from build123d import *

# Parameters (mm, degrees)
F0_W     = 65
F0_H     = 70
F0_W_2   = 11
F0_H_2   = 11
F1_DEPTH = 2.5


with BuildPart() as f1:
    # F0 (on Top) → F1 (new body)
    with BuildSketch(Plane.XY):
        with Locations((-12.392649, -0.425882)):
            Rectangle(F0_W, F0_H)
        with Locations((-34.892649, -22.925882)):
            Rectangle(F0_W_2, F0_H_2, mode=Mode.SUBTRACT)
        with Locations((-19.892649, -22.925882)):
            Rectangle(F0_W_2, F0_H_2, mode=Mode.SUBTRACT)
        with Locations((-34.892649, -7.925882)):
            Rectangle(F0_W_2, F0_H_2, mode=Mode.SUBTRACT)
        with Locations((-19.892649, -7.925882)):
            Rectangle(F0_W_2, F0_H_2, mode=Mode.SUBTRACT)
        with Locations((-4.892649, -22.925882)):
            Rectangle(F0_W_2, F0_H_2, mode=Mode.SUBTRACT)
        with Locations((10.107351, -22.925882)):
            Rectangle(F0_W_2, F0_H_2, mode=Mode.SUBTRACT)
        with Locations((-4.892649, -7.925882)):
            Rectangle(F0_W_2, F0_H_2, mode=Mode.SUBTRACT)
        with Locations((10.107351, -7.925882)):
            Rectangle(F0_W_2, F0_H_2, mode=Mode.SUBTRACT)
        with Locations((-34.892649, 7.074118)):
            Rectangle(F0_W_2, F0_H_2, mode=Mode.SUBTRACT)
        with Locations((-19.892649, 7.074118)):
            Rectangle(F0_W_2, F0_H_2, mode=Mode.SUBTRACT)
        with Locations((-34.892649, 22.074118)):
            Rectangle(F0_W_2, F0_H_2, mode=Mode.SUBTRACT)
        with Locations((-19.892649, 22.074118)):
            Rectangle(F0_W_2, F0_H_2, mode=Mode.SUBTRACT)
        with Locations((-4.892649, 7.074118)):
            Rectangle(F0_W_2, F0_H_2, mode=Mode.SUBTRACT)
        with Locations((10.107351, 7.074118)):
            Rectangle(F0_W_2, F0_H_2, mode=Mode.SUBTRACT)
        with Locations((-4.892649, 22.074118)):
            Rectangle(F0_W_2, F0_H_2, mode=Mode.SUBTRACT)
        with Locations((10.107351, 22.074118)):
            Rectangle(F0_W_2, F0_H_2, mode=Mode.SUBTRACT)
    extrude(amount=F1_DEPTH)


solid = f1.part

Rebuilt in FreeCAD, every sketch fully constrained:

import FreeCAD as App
import Part
import Sketcher

V = App.Vector
Q = App.Units.Quantity

doc = App.newDocument("Part")
body = doc.addObject("PartDesign::Body", "Body")

sketch1 = doc.addObject("Sketcher::SketchObject", "Sketch")
body.addObject(sketch1)
sketch1.AttachmentSupport = (doc.XY_Plane, [""])
sketch1.MapMode = "FlatFace"
sketch1.addGeometry(Part.LineSegment(V(-45, 35, 0), V(-45, -35, 0)), False)
sketch1.addGeometry(Part.LineSegment(V(-45, -35, 0), V(20, -35, 0)), False)
sketch1.addGeometry(Part.LineSegment(V(20, -35, 0), V(20, 35, 0)), False)
sketch1.addGeometry(Part.LineSegment(V(20, 35, 0), V(-45, 35, 0)), False)
sketch1.addGeometry(Part.LineSegment(V(-29, -28, 0), V(-40, -28, 0)), False)
sketch1.addGeometry(Part.LineSegment(V(-40, -28, 0), V(-40, -17, 0)), False)
sketch1.addGeometry(Part.LineSegment(V(-40, -17, 0), V(-29, -17, 0)), False)
sketch1.addGeometry(Part.LineSegment(V(-29, -17, 0), V(-29, -28, 0)), False)
sketch1.addGeometry(Part.LineSegment(V(-14, -28, 0), V(-25, -28, 0)), False)
sketch1.addGeometry(Part.LineSegment(V(-25, -28, 0), V(-25, -17, 0)), False)
sketch1.addGeometry(Part.LineSegment(V(-25, -17, 0), V(-14, -17, 0)), False)
sketch1.addGeometry(Part.LineSegment(V(-14, -17, 0), V(-14, -28, 0)), False)
sketch1.addGeometry(Part.LineSegment(V(-29, -13, 0), V(-40, -13, 0)), False)
sketch1.addGeometry(Part.LineSegment(V(-40, -13, 0), V(-40, -2, 0)), False)
sketch1.addGeometry(Part.LineSegment(V(-40, -2, 0), V(-29, -2, 0)), False)
sketch1.addGeometry(Part.LineSegment(V(-29, -2, 0), V(-29, -13, 0)), False)
sketch1.addGeometry(Part.LineSegment(V(-14, -13, 0), V(-25, -13, 0)), False)
sketch1.addGeometry(Part.LineSegment(V(-25, -13, 0), V(-25, -2, 0)), False)
sketch1.addGeometry(Part.LineSegment(V(-25, -2, 0), V(-14, -2, 0)), False)
sketch1.addGeometry(Part.LineSegment(V(-14, -2, 0), V(-14, -13, 0)), False)
sketch1.addGeometry(Part.LineSegment(V(1, -28, 0), V(-10, -28, 0)), False)
sketch1.addGeometry(Part.LineSegment(V(-10, -28, 0), V(-10, -17, 0)), False)
sketch1.addGeometry(Part.LineSegment(V(-10, -17, 0), V(1, -17, 0)), False)
sketch1.addGeometry(Part.LineSegment(V(1, -17, 0), V(1, -28, 0)), False)
sketch1.addGeometry(Part.LineSegment(V(16, -28, 0), V(5, -28, 0)), False)
sketch1.addGeometry(Part.LineSegment(V(5, -28, 0), V(5, -17, 0)), False)
sketch1.addGeometry(Part.LineSegment(V(5, -17, 0), V(16, -17, 0)), False)
sketch1.addGeometry(Part.LineSegment(V(16, -17, 0), V(16, -28, 0)), False)
sketch1.addGeometry(Part.LineSegment(V(1, -13, 0), V(-10, -13, 0)), False)
sketch1.addGeometry(Part.LineSegment(V(-10, -13, 0), V(-10, -2, 0)), False)
sketch1.addGeometry(Part.LineSegment(V(-10, -2, 0), V(1, -2, 0)), False)
sketch1.addGeometry(Part.LineSegment(V(1, -2, 0), V(1, -13, 0)), False)
sketch1.addGeometry(Part.LineSegment(V(16, -13, 0), V(5, -13, 0)), False)
sketch1.addGeometry(Part.LineSegment(V(5, -13, 0), V(5, -2, 0)), False)
sketch1.addGeometry(Part.LineSegment(V(5, -2, 0), V(16, -2, 0)), False)
sketch1.addGeometry(Part.LineSegment(V(16, -2, 0), V(16, -13, 0)), False)
sketch1.addGeometry(Part.LineSegment(V(-29, 2, 0), V(-40, 2, 0)), False)
sketch1.addGeometry(Part.LineSegment(V(-40, 2, 0), V(-40, 13, 0)), False)
sketch1.addGeometry(Part.LineSegment(V(-40, 13, 0), V(-29, 13, 0)), False)
sketch1.addGeometry(Part.LineSegment(V(-29, 13, 0), V(-29, 2, 0)), False)
sketch1.addGeometry(Part.LineSegment(V(-14, 2, 0), V(-25, 2, 0)), False)
sketch1.addGeometry(Part.LineSegment(V(-25, 2, 0), V(-25, 13, 0)), False)
sketch1.addGeometry(Part.LineSegment(V(-25, 13, 0), V(-14, 13, 0)), False)
sketch1.addGeometry(Part.LineSegment(V(-14, 13, 0), V(-14, 2, 0)), False)
sketch1.addGeometry(Part.LineSegment(V(-29, 17, 0), V(-40, 17, 0)), False)
sketch1.addGeometry(Part.LineSegment(V(-40, 17, 0), V(-40, 28, 0)), False)
sketch1.addGeometry(Part.LineSegment(V(-40, 28, 0), V(-29, 28, 0)), False)
sketch1.addGeometry(Part.LineSegment(V(-29, 28, 0), V(-29, 17, 0)), False)
sketch1.addGeometry(Part.LineSegment(V(-14, 17, 0), V(-25, 17, 0)), False)
sketch1.addGeometry(Part.LineSegment(V(-25, 17, 0), V(-25, 28, 0)), False)
sketch1.addGeometry(Part.LineSegment(V(-25, 28, 0), V(-14, 28, 0)), False)
sketch1.addGeometry(Part.LineSegment(V(-14, 28, 0), V(-14, 17, 0)), False)
sketch1.addGeometry(Part.LineSegment(V(1, 2, 0), V(-10, 2, 0)), False)
sketch1.addGeometry(Part.LineSegment(V(-10, 2, 0), V(-10, 13, 0)), False)
sketch1.addGeometry(Part.LineSegment(V(-10, 13, 0), V(1, 13, 0)), False)
sketch1.addGeometry(Part.LineSegment(V(1, 13, 0), V(1, 2, 0)), False)
sketch1.addGeometry(Part.LineSegment(V(16, 2, 0), V(5, 2, 0)), False)
sketch1.addGeometry(Part.LineSegment(V(5, 2, 0), V(5, 13, 0)), False)
sketch1.addGeometry(Part.LineSegment(V(5, 13, 0), V(16, 13, 0)), False)
sketch1.addGeometry(Part.LineSegment(V(16, 13, 0), V(16, 2, 0)), False)
sketch1.addGeometry(Part.LineSegment(V(1, 17, 0), V(-10, 17, 0)), False)
sketch1.addGeometry(Part.LineSegment(V(-10, 17, 0), V(-10, 28, 0)), False)
sketch1.addGeometry(Part.LineSegment(V(-10, 28, 0), V(1, 28, 0)), False)
sketch1.addGeometry(Part.LineSegment(V(1, 28, 0), V(1, 17, 0)), False)
sketch1.addGeometry(Part.LineSegment(V(16, 17, 0), V(5, 17, 0)), False)
sketch1.addGeometry(Part.LineSegment(V(5, 17, 0), V(5, 28, 0)), False)
sketch1.addGeometry(Part.LineSegment(V(5, 28, 0), V(16, 28, 0)), False)
sketch1.addGeometry(Part.LineSegment(V(16, 28, 0), V(16, 17, 0)), False)
sketch1.addConstraint(Sketcher.Constraint("Coincident", 0, 2, 1, 1))
sketch1.addConstraint(Sketcher.Constraint("Coincident", 1, 2, 2, 1))
sketch1.addConstraint(Sketcher.Constraint("Coincident", 2, 2, 3, 1))
sketch1.addConstraint(Sketcher.Constraint("Coincident", 3, 2, 0, 1))
sketch1.addConstraint(Sketcher.Constraint("Coincident", 4, 2, 5, 1))
sketch1.addConstraint(Sketcher.Constraint("Coincident", 5, 2, 6, 1))
sketch1.addConstraint(Sketcher.Constraint("Coincident", 6, 2, 7, 1))
sketch1.addConstraint(Sketcher.Constraint("Coincident", 7, 2, 4, 1))
sketch1.addConstraint(Sketcher.Constraint("Coincident", 8, 2, 9, 1))
sketch1.addConstraint(Sketcher.Constraint("Coincident", 9, 2, 10, 1))
sketch1.addConstraint(Sketcher.Constraint("Coincident", 10, 2, 11, 1))
sketch1.addConstraint(Sketcher.Constraint("Coincident", 11, 2, 8, 1))
sketch1.addConstraint(Sketcher.Constraint("Coincident", 12, 2, 13, 1))
sketch1.addConstraint(Sketcher.Constraint("Coincident", 13, 2, 14, 1))
sketch1.addConstraint(Sketcher.Constraint("Coincident", 14, 2, 15, 1))
sketch1.addConstraint(Sketcher.Constraint("Coincident", 15, 2, 12, 1))
sketch1.addConstraint(Sketcher.Constraint("Coincident", 16, 2, 17, 1))
sketch1.addConstraint(Sketcher.Constraint("Coincident", 17, 2, 18, 1))
sketch1.addConstraint(Sketcher.Constraint("Coincident", 18, 2, 19, 1))
sketch1.addConstraint(Sketcher.Constraint("Coincident", 19, 2, 16, 1))
sketch1.addConstraint(Sketcher.Constraint("Coincident", 20, 2, 21, 1))
sketch1.addConstraint(Sketcher.Constraint("Coincident", 21, 2, 22, 1))
sketch1.addConstraint(Sketcher.Constraint("Coincident", 22, 2, 23, 1))
sketch1.addConstraint(Sketcher.Constraint("Coincident", 23, 2, 20, 1))
sketch1.addConstraint(Sketcher.Constraint("Coincident", 24, 2, 25, 1))
sketch1.addConstraint(Sketcher.Constraint("Coincident", 25, 2, 26, 1))
sketch1.addConstraint(Sketcher.Constraint("Coincident", 26, 2, 27, 1))
sketch1.addConstraint(Sketcher.Constraint("Coincident", 27, 2, 24, 1))
sketch1.addConstraint(Sketcher.Constraint("Coincident", 28, 2, 29, 1))
sketch1.addConstraint(Sketcher.Constraint("Coincident", 29, 2, 30, 1))
sketch1.addConstraint(Sketcher.Constraint("Coincident", 30, 2, 31, 1))
sketch1.addConstraint(Sketcher.Constraint("Coincident", 31, 2, 28, 1))
sketch1.addConstraint(Sketcher.Constraint("Coincident", 32, 2, 33, 1))
sketch1.addConstraint(Sketcher.Constraint("Coincident", 33, 2, 34, 1))
sketch1.addConstraint(Sketcher.Constraint("Coincident", 34, 2, 35, 1))
sketch1.addConstraint(Sketcher.Constraint("Coincident", 35, 2, 32, 1))
sketch1.addConstraint(Sketcher.Constraint("Coincident", 36, 2, 37, 1))
sketch1.addConstraint(Sketcher.Constraint("Coincident", 37, 2, 38, 1))
sketch1.addConstraint(Sketcher.Constraint("Coincident", 38, 2, 39, 1))
sketch1.addConstraint(Sketcher.Constraint("Coincident", 39, 2, 36, 1))
sketch1.addConstraint(Sketcher.Constraint("Coincident", 40, 2, 41, 1))
sketch1.addConstraint(Sketcher.Constraint("Coincident", 41, 2, 42, 1))
sketch1.addConstraint(Sketcher.Constraint("Coincident", 42, 2, 43, 1))
sketch1.addConstraint(Sketcher.Constraint("Coincident", 43, 2, 40, 1))
sketch1.addConstraint(Sketcher.Constraint("Coincident", 44, 2, 45, 1))
sketch1.addConstraint(Sketcher.Constraint("Coincident", 45, 2, 46, 1))
sketch1.addConstraint(Sketcher.Constraint("Coincident", 46, 2, 47, 1))
sketch1.addConstraint(Sketcher.Constraint("Coincident", 47, 2, 44, 1))
sketch1.addConstraint(Sketcher.Constraint("Coincident", 48, 2, 49, 1))
sketch1.addConstraint(Sketcher.Constraint("Coincident", 49, 2, 50, 1))
sketch1.addConstraint(Sketcher.Constraint("Coincident", 50, 2, 51, 1))
sketch1.addConstraint(Sketcher.Constraint("Coincident", 51, 2, 48, 1))
sketch1.addConstraint(Sketcher.Constraint("Coincident", 52, 2, 53, 1))
sketch1.addConstraint(Sketcher.Constraint("Coincident", 53, 2, 54, 1))
sketch1.addConstraint(Sketcher.Constraint("Coincident", 54, 2, 55, 1))
sketch1.addConstraint(Sketcher.Constraint("Coincident", 55, 2, 52, 1))
sketch1.addConstraint(Sketcher.Constraint("Coincident", 56, 2, 57, 1))
sketch1.addConstraint(Sketcher.Constraint("Coincident", 57, 2, 58, 1))
sketch1.addConstraint(Sketcher.Constraint("Coincident", 58, 2, 59, 1))
sketch1.addConstraint(Sketcher.Constraint("Coincident", 59, 2, 56, 1))
sketch1.addConstraint(Sketcher.Constraint("Coincident", 60, 2, 61, 1))
sketch1.addConstraint(Sketcher.Constraint("Coincident", 61, 2, 62, 1))
sketch1.addConstraint(Sketcher.Constraint("Coincident", 62, 2, 63, 1))
sketch1.addConstraint(Sketcher.Constraint("Coincident", 63, 2, 60, 1))
sketch1.addConstraint(Sketcher.Constraint("Coincident", 64, 2, 65, 1))
sketch1.addConstraint(Sketcher.Constraint("Coincident", 65, 2, 66, 1))
sketch1.addConstraint(Sketcher.Constraint("Coincident", 66, 2, 67, 1))
sketch1.addConstraint(Sketcher.Constraint("Coincident", 67, 2, 64, 1))
sketch1.addConstraint(Sketcher.Constraint("Vertical", 0))
sketch1.addConstraint(Sketcher.Constraint("Horizontal", 1))
sketch1.addConstraint(Sketcher.Constraint("Vertical", 2))
sketch1.addConstraint(Sketcher.Constraint("Horizontal", 3))
sketch1.addConstraint(Sketcher.Constraint("Horizontal", 4))
sketch1.addConstraint(Sketcher.Constraint("Vertical", 5))
sketch1.addConstraint(Sketcher.Constraint("Horizontal", 6))
sketch1.addConstraint(Sketcher.Constraint("Vertical", 7))
sketch1.addConstraint(Sketcher.Constraint("Horizontal", 8))
sketch1.addConstraint(Sketcher.Constraint("Vertical", 9))
sketch1.addConstraint(Sketcher.Constraint("Horizontal", 10))
sketch1.addConstraint(Sketcher.Constraint("Vertical", 11))
sketch1.addConstraint(Sketcher.Constraint("Horizontal", 12))
sketch1.addConstraint(Sketcher.Constraint("Vertical", 13))
sketch1.addConstraint(Sketcher.Constraint("Horizontal", 14))
sketch1.addConstraint(Sketcher.Constraint("Vertical", 15))
sketch1.addConstraint(Sketcher.Constraint("Horizontal", 16))
sketch1.addConstraint(Sketcher.Constraint("Vertical", 17))
sketch1.addConstraint(Sketcher.Constraint("Horizontal", 18))
sketch1.addConstraint(Sketcher.Constraint("Vertical", 19))
sketch1.addConstraint(Sketcher.Constraint("Horizontal", 20))
sketch1.addConstraint(Sketcher.Constraint("Vertical", 21))
sketch1.addConstraint(Sketcher.Constraint("Horizontal", 22))
sketch1.addConstraint(Sketcher.Constraint("Vertical", 23))
sketch1.addConstraint(Sketcher.Constraint("Horizontal", 24))
sketch1.addConstraint(Sketcher.Constraint("Vertical", 25))
sketch1.addConstraint(Sketcher.Constraint("Horizontal", 26))
sketch1.addConstraint(Sketcher.Constraint("Vertical", 27))
sketch1.addConstraint(Sketcher.Constraint("Horizontal", 28))
sketch1.addConstraint(Sketcher.Constraint("Vertical", 29))
sketch1.addConstraint(Sketcher.Constraint("Horizontal", 30))
sketch1.addConstraint(Sketcher.Constraint("Vertical", 31))
sketch1.addConstraint(Sketcher.Constraint("Horizontal", 32))
sketch1.addConstraint(Sketcher.Constraint("Vertical", 33))
sketch1.addConstraint(Sketcher.Constraint("Horizontal", 34))
sketch1.addConstraint(Sketcher.Constraint("Vertical", 35))
sketch1.addConstraint(Sketcher.Constraint("Horizontal", 36))
sketch1.addConstraint(Sketcher.Constraint("Vertical", 37))
sketch1.addConstraint(Sketcher.Constraint("Horizontal", 38))
sketch1.addConstraint(Sketcher.Constraint("Vertical", 39))
sketch1.addConstraint(Sketcher.Constraint("Horizontal", 40))
sketch1.addConstraint(Sketcher.Constraint("Vertical", 41))
sketch1.addConstraint(Sketcher.Constraint("Horizontal", 42))
sketch1.addConstraint(Sketcher.Constraint("Vertical", 43))
sketch1.addConstraint(Sketcher.Constraint("Horizontal", 44))
sketch1.addConstraint(Sketcher.Constraint("Vertical", 45))
sketch1.addConstraint(Sketcher.Constraint("Horizontal", 46))
sketch1.addConstraint(Sketcher.Constraint("Vertical", 47))
sketch1.addConstraint(Sketcher.Constraint("Horizontal", 48))
sketch1.addConstraint(Sketcher.Constraint("Vertical", 49))
sketch1.addConstraint(Sketcher.Constraint("Horizontal", 50))
sketch1.addConstraint(Sketcher.Constraint("Vertical", 51))
sketch1.addConstraint(Sketcher.Constraint("Horizontal", 52))
sketch1.addConstraint(Sketcher.Constraint("Vertical", 53))
sketch1.addConstraint(Sketcher.Constraint("Horizontal", 54))
sketch1.addConstraint(Sketcher.Constraint("Vertical", 55))
sketch1.addConstraint(Sketcher.Constraint("Horizontal", 56))
sketch1.addConstraint(Sketcher.Constraint("Vertical", 57))
sketch1.addConstraint(Sketcher.Constraint("Horizontal", 58))
sketch1.addConstraint(Sketcher.Constraint("Vertical", 59))
sketch1.addConstraint(Sketcher.Constraint("Horizontal", 60))
sketch1.addConstraint(Sketcher.Constraint("Vertical", 61))
sketch1.addConstraint(Sketcher.Constraint("Horizontal", 62))
sketch1.addConstraint(Sketcher.Constraint("Vertical", 63))
sketch1.addConstraint(Sketcher.Constraint("Horizontal", 64))
sketch1.addConstraint(Sketcher.Constraint("Vertical", 65))
sketch1.addConstraint(Sketcher.Constraint("Horizontal", 66))
sketch1.addConstraint(Sketcher.Constraint("Vertical", 67))
sketch1.addConstraint(Sketcher.Constraint("Horizontal", 7, 2, 8, 2))
sketch1.addConstraint(Sketcher.Constraint("Horizontal", 6, 2, 9, 2))
sketch1.addConstraint(Sketcher.Constraint("Horizontal", 15, 2, 16, 2))
sketch1.addConstraint(Sketcher.Constraint("Horizontal", 14, 2, 17, 2))
sketch1.addConstraint(Sketcher.Constraint("Horizontal", 11, 2, 20, 2))
sketch1.addConstraint(Sketcher.Constraint("Horizontal", 10, 2, 21, 2))
sketch1.addConstraint(Sketcher.Constraint("Horizontal", 23, 2, 24, 2))
sketch1.addConstraint(Sketcher.Constraint("Horizontal", 22, 2, 25, 2))
sketch1.addConstraint(Sketcher.Constraint("Horizontal", 19, 2, 28, 2))
sketch1.addConstraint(Sketcher.Constraint("Horizontal", 18, 2, 29, 2))
sketch1.addConstraint(Sketcher.Constraint("Horizontal", 31, 2, 32, 2))
sketch1.addConstraint(Sketcher.Constraint("Horizontal", 30, 2, 33, 2))
sketch1.addConstraint(Sketcher.Constraint("Horizontal", 39, 2, 40, 2))
sketch1.addConstraint(Sketcher.Constraint("Horizontal", 38, 2, 41, 2))
sketch1.addConstraint(Sketcher.Constraint("Horizontal", 47, 2, 48, 2))
sketch1.addConstraint(Sketcher.Constraint("Horizontal", 46, 2, 49, 2))
sketch1.addConstraint(Sketcher.Constraint("Horizontal", 43, 2, 52, 2))
sketch1.addConstraint(Sketcher.Constraint("Horizontal", 42, 2, 53, 2))
sketch1.addConstraint(Sketcher.Constraint("Horizontal", 55, 2, 56, 2))
sketch1.addConstraint(Sketcher.Constraint("Horizontal", 54, 2, 57, 2))
sketch1.addConstraint(Sketcher.Constraint("Horizontal", 51, 2, 60, 2))
sketch1.addConstraint(Sketcher.Constraint("Horizontal", 50, 2, 61, 2))
sketch1.addConstraint(Sketcher.Constraint("Horizontal", 63, 2, 64, 2))
sketch1.addConstraint(Sketcher.Constraint("Horizontal", 62, 2, 65, 2))
sketch1.addConstraint(Sketcher.Constraint("Vertical", 5, 2, 12, 2))
sketch1.addConstraint(Sketcher.Constraint("Vertical", 7, 2, 14, 2))
sketch1.addConstraint(Sketcher.Constraint("Vertical", 9, 2, 16, 2))
sketch1.addConstraint(Sketcher.Constraint("Vertical", 11, 2, 18, 2))
sketch1.addConstraint(Sketcher.Constraint("Vertical", 21, 2, 28, 2))
sketch1.addConstraint(Sketcher.Constraint("Vertical", 23, 2, 30, 2))
sketch1.addConstraint(Sketcher.Constraint("Vertical", 25, 2, 32, 2))
sketch1.addConstraint(Sketcher.Constraint("Vertical", 27, 2, 34, 2))
sketch1.addConstraint(Sketcher.Constraint("Vertical", 13, 2, 36, 2))
sketch1.addConstraint(Sketcher.Constraint("Vertical", 15, 2, 38, 2))
sketch1.addConstraint(Sketcher.Constraint("Vertical", 17, 2, 40, 2))
sketch1.addConstraint(Sketcher.Constraint("Vertical", 19, 2, 42, 2))
sketch1.addConstraint(Sketcher.Constraint("Vertical", 37, 2, 44, 2))
sketch1.addConstraint(Sketcher.Constraint("Vertical", 39, 2, 46, 2))
sketch1.addConstraint(Sketcher.Constraint("Vertical", 41, 2, 48, 2))
sketch1.addConstraint(Sketcher.Constraint("Vertical", 43, 2, 50, 2))
sketch1.addConstraint(Sketcher.Constraint("Vertical", 29, 2, 52, 2))
sketch1.addConstraint(Sketcher.Constraint("Vertical", 31, 2, 54, 2))
sketch1.addConstraint(Sketcher.Constraint("Vertical", 33, 2, 56, 2))
sketch1.addConstraint(Sketcher.Constraint("Vertical", 35, 2, 58, 2))
sketch1.addConstraint(Sketcher.Constraint("Vertical", 53, 2, 60, 2))
sketch1.addConstraint(Sketcher.Constraint("Vertical", 55, 2, 62, 2))
sketch1.addConstraint(Sketcher.Constraint("Vertical", 57, 2, 64, 2))
sketch1.addConstraint(Sketcher.Constraint("Vertical", 59, 2, 66, 2))
sketch1.addConstraint(Sketcher.Constraint("Equal", 6, 8))
sketch1.addConstraint(Sketcher.Constraint("Equal", 18, 20))
sketch1.addConstraint(Sketcher.Constraint("Equal", 22, 24))
sketch1.addConstraint(Sketcher.Constraint("Equal", 66, 5))
sketch1.addConstraint(Sketcher.Constraint("Equal", 11, 13))
sketch1.addConstraint(Sketcher.Constraint("Equal", 35, 37))
sketch1.addConstraint(Sketcher.Constraint("Equal", 43, 45))
sketch1.addConstraint(Sketcher.Constraint("DistanceX", 1, 1, 1, 2, Q("65 mm")))
sketch1.addConstraint(Sketcher.Constraint("DistanceX", 4, 2, 4, 1, Q("11 mm")))
sketch1.addConstraint(Sketcher.Constraint("DistanceY", 0, 2, 0, 1, Q("70 mm")))
sketch1.addConstraint(Sketcher.Constraint("DistanceX", 0, 2, -1, 1, Q("44.892649 mm")))
sketch1.addConstraint(Sketcher.Constraint("DistanceX", 4, 2, -1, 1, Q("40.392649 mm")))
sketch1.addConstraint(Sketcher.Constraint("DistanceX", 8, 2, -1, 1, Q("25.392649 mm")))
sketch1.addConstraint(Sketcher.Constraint("DistanceX", 20, 2, -1, 1, Q("10.392649 mm")))
sketch1.addConstraint(Sketcher.Constraint("DistanceX", -1, 1, 24, 2, Q("4.607351 mm")))
sketch1.addConstraint(Sketcher.Constraint("DistanceY", 0, 2, -1, 1, Q("35.425882 mm")))
sketch1.addConstraint(Sketcher.Constraint("DistanceY", 4, 2, -1, 1, Q("28.425882 mm")))
sketch1.addConstraint(Sketcher.Constraint("DistanceY", 12, 2, -1, 1, Q("13.425882 mm")))
sketch1.addConstraint(Sketcher.Constraint("DistanceY", -1, 1, 36, 2, Q("1.574118 mm")))
sketch1.addConstraint(Sketcher.Constraint("DistanceY", -1, 1, 44, 2, Q("16.574118 mm")))
pad1 = doc.addObject("PartDesign::Pad", "Pad")
body.addObject(pad1)
pad1.Profile = sketch1
pad1.Length = 2.5

doc.recompute()
